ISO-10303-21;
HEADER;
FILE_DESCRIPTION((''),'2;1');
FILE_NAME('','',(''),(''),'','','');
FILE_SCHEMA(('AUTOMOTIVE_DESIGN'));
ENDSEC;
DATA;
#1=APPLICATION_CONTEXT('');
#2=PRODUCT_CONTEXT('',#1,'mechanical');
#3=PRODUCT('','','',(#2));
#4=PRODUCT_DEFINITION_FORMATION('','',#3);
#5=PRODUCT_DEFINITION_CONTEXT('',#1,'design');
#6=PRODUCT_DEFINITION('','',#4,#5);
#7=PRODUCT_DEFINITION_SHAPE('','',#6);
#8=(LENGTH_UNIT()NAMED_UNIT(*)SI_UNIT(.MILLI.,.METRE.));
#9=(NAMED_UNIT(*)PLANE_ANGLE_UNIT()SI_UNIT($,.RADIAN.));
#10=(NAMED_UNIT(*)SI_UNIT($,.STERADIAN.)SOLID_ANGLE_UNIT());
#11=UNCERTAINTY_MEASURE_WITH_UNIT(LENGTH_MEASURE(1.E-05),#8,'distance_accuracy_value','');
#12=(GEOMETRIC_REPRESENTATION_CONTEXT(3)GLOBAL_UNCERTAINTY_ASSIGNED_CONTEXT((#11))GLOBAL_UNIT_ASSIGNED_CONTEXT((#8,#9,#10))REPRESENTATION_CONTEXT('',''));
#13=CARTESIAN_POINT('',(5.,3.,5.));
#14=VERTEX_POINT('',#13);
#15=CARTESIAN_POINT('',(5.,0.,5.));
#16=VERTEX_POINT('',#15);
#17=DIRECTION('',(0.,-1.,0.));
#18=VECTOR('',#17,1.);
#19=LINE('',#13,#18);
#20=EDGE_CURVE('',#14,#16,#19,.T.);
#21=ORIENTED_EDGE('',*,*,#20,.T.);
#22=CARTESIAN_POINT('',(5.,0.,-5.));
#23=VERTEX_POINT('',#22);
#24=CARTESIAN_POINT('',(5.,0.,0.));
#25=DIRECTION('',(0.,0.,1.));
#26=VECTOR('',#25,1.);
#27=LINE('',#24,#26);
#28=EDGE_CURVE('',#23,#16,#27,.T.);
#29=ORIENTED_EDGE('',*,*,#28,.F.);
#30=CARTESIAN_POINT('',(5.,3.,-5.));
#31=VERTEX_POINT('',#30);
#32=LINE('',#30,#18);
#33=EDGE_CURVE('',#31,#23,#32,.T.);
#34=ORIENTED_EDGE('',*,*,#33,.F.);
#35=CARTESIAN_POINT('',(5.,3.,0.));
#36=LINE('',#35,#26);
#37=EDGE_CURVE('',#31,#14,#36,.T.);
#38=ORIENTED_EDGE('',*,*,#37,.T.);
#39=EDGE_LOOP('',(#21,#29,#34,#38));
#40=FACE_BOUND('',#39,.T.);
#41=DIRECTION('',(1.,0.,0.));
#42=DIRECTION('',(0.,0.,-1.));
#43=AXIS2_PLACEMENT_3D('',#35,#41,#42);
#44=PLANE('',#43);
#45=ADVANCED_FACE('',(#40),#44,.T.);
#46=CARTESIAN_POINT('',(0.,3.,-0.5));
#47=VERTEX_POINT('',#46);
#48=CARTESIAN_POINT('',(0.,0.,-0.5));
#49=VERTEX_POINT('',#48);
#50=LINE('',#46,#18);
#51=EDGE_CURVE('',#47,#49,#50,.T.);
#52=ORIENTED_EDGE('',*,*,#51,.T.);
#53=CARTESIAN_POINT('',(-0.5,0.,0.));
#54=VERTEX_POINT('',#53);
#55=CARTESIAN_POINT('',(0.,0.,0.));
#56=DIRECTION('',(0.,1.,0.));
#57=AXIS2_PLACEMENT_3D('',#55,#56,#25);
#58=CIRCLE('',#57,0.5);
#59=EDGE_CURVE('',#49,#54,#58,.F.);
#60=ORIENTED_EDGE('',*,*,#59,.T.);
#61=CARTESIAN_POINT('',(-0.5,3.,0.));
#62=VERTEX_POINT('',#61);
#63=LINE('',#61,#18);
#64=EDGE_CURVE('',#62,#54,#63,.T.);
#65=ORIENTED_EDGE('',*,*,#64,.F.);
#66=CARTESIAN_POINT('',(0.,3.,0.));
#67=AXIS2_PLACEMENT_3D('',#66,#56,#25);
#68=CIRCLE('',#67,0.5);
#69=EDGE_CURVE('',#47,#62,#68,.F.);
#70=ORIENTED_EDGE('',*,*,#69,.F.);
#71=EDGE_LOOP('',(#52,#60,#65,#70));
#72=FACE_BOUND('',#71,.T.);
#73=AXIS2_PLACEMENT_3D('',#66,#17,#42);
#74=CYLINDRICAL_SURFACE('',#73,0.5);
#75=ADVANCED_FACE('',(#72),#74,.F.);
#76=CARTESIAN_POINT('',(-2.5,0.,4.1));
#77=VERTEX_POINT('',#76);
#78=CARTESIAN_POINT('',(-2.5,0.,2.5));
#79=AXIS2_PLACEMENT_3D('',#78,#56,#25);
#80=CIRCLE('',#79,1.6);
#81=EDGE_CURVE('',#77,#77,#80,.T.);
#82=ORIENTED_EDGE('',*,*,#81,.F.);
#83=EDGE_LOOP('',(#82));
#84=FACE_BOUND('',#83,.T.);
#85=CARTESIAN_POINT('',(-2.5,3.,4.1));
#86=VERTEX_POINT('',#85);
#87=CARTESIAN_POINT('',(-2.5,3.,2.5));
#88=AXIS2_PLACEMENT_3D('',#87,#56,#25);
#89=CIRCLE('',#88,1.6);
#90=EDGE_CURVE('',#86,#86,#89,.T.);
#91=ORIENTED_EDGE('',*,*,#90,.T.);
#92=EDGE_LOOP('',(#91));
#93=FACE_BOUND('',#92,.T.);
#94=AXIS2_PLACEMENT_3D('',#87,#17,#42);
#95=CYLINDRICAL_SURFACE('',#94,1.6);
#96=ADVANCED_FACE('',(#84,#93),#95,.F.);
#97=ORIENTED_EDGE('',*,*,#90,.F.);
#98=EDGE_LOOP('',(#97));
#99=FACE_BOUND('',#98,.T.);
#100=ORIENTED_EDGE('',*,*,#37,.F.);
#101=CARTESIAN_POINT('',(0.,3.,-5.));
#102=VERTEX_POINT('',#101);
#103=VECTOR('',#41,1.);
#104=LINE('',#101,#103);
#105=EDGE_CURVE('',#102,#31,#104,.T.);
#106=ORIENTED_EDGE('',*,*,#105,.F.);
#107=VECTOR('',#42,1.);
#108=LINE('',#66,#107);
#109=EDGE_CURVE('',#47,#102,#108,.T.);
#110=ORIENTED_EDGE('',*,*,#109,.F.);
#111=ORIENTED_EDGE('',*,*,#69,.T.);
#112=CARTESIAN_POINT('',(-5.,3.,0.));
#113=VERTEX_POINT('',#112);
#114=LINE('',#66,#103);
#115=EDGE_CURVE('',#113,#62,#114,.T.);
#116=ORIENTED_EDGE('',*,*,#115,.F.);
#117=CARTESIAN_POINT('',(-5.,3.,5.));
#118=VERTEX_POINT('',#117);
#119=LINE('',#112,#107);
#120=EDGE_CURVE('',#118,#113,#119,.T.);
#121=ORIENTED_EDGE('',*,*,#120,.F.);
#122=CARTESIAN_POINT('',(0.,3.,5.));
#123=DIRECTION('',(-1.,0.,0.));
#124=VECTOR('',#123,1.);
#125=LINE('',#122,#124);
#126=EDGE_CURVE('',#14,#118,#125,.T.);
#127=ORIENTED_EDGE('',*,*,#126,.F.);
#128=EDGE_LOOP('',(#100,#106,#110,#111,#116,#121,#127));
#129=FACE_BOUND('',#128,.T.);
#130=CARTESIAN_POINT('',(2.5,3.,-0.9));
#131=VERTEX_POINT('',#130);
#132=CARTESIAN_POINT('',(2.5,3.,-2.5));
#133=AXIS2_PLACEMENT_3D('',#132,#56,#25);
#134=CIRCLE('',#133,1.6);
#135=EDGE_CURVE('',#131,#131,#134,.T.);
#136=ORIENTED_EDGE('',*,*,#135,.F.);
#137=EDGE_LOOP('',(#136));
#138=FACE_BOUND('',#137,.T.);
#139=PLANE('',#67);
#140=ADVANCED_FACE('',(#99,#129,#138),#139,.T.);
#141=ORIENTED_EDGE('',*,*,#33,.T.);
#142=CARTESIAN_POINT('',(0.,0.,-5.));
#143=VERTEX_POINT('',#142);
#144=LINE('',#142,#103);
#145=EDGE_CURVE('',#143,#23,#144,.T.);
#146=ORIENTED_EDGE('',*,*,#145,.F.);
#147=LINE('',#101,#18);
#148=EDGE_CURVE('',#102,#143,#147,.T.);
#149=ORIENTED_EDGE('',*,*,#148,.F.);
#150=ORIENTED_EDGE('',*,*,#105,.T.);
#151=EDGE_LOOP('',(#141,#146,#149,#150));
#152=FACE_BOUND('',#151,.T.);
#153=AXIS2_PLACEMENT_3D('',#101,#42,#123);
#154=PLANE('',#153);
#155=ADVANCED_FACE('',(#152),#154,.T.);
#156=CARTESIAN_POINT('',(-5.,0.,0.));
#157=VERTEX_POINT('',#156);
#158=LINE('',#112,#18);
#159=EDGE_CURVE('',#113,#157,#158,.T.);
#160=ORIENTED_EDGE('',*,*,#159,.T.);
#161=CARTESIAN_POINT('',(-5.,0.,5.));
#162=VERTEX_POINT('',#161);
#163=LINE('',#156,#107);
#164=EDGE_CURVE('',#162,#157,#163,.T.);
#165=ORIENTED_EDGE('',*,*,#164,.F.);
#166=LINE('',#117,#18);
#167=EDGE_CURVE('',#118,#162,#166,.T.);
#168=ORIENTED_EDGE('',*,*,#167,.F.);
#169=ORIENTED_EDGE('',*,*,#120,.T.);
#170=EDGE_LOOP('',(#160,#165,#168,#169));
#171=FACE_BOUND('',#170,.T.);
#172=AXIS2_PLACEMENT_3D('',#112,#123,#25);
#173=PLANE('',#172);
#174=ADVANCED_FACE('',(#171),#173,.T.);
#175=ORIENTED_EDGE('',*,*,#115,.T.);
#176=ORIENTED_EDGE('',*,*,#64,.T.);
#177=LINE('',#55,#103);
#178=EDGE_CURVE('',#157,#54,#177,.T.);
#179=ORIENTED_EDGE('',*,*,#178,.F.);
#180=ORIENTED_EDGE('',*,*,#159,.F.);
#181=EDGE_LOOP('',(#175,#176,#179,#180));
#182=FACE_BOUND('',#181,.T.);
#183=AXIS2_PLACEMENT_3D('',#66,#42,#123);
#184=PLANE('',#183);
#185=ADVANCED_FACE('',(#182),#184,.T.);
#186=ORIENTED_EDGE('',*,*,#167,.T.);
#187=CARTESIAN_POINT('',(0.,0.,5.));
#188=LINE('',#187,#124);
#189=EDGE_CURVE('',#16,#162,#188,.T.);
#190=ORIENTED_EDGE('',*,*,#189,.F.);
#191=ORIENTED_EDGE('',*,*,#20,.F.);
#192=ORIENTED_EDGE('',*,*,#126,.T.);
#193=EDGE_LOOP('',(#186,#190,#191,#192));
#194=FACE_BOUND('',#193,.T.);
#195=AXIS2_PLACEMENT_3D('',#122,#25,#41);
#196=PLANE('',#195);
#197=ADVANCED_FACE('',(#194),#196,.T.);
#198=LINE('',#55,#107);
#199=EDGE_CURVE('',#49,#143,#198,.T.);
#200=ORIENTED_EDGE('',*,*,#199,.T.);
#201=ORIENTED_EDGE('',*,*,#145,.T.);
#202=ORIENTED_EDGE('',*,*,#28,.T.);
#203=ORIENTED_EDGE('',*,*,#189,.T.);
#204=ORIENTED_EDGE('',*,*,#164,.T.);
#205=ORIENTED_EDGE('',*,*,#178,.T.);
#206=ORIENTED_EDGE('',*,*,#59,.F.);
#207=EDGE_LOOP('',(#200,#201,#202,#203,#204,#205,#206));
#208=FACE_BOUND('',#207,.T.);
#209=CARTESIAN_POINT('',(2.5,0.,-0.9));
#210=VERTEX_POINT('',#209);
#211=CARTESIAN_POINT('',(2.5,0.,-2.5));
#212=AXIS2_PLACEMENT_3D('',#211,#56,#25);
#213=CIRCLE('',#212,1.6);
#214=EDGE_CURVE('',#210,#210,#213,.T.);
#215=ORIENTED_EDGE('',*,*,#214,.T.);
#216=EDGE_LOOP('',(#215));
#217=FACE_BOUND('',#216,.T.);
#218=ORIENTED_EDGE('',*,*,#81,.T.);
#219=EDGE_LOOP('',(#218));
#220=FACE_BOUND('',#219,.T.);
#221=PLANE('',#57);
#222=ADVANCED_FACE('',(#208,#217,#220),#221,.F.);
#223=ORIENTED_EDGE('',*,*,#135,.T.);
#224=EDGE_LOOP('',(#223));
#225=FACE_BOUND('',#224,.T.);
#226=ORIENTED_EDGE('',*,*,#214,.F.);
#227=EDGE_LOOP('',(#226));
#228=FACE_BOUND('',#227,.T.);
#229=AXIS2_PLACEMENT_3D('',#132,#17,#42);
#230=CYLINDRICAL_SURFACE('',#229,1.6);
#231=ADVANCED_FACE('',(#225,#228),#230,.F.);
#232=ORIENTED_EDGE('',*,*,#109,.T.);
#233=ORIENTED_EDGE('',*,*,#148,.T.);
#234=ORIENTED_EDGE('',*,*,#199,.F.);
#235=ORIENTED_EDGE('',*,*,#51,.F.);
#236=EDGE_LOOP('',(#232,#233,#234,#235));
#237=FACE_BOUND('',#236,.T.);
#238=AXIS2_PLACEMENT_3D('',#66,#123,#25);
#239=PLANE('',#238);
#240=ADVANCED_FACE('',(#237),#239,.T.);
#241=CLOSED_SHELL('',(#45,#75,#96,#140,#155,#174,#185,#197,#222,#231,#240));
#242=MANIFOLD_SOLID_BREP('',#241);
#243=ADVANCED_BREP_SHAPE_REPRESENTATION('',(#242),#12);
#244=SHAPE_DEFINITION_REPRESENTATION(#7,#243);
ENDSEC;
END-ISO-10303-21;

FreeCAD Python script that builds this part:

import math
import FreeCAD as App
import Part
import Sketcher

doc = App.newDocument("Part")
params = doc.addObject("Spreadsheet::Sheet", "Params")
for row, (alias, value) in enumerate([
    ("sketch1_diameter", "3.2 mm"),
    ("sketch1_radius", "0.5 mm"),
    ("sketch1_width", "10 mm"),
    ("pad1_length", "3 mm"),
], start=1):
    params.set(f"A{row}", alias)
    params.set(f"B{row}", "=" + value)
    params.setAlias(f"B{row}", alias)

body = doc.addObject("PartDesign::Body", "Body")

# Sketch on XZ plane
sketch1 = body.newObject("Sketcher::SketchObject", "Sketch")
sketch1.AttachmentSupport = (doc.getObject("XZ_Plane"), [""])
sketch1.MapMode = "FlatFace"
sketch1.addGeometry(Part.LineSegment(App.Vector(-0.5, 0, 0), App.Vector(-5, 0, 0)), False)
sketch1.addGeometry(Part.LineSegment(App.Vector(-5, 0, 0), App.Vector(-5, 5, 0)), False)
sketch1.addGeometry(Part.LineSegment(App.Vector(-5, 5, 0), App.Vector(5, 5, 0)), False)
sketch1.addGeometry(Part.LineSegment(App.Vector(5, 5, 0), App.Vector(5, -5, 0)), False)
sketch1.addGeometry(Part.LineSegment(App.Vector(5, -5, 0), App.Vector(0, -5, 0)), False)
sketch1.addGeometry(Part.LineSegment(App.Vector(0, -5, 0), App.Vector(0, -0.5, 0)), False)
sketch1.addGeometry(Part.ArcOfCircle(Part.Circle(App.Vector(0, 0, 0), App.Vector(0, 0, 1), 0.5), math.radians(-90), math.radians(180)), False)
sketch1.addGeometry(Part.Circle(App.Vector(-2.5, 2.5, 0), App.Vector(0, 0, 1), 1.6), False)
sketch1.addGeometry(Part.Circle(App.Vector(2.5, -2.5, 0), App.Vector(0, 0, 1), 1.6), False)
sketch1.addConstraint(Sketcher.Constraint("Coincident", 0, 2, 1, 1))
sketch1.addConstraint(Sketcher.Constraint("Coincident", 1, 2, 2, 1))
sketch1.addConstraint(Sketcher.Constraint("Coincident", 2, 2, 3, 1))
sketch1.addConstraint(Sketcher.Constraint("Coincident", 3, 2, 4, 1))
sketch1.addConstraint(Sketcher.Constraint("Coincident", 4, 2, 5, 1))
sketch1.addConstraint(Sketcher.Constraint("Coincident", 5, 2, 6, 1))
sketch1.addConstraint(Sketcher.Constraint("Coincident", 6, 2, 0, 1))
sketch1.addConstraint(Sketcher.Constraint("Horizontal", 0))
sketch1.addConstraint(Sketcher.Constraint("Vertical", 1))
sketch1.addConstraint(Sketcher.Constraint("Horizontal", 2))
sketch1.addConstraint(Sketcher.Constraint("Vertical", 3))
sketch1.addConstraint(Sketcher.Constraint("Horizontal", 4))
sketch1.addConstraint(Sketcher.Constraint("Vertical", 5))
sketch1.addConstraint(Sketcher.Constraint("Coincident", 6, 3, -1, 1))
sketch1.addConstraint(Sketcher.Constraint("Equal", 7, 8))
sketch1.addConstraint(Sketcher.Constraint("Symmetric", 7, 3, 8, 3, -1, 1))
sketch1.addConstraint(Sketcher.Constraint("Symmetric", 1, 2, 3, 2, -1, 1))
sketch1.addConstraint(Sketcher.Constraint("PointOnObject", 0, 2, -1))
sketch1.addConstraint(Sketcher.Constraint("PointOnObject", 4, 2, -2))
sketch1.addConstraint(Sketcher.Constraint("Equal", 4, 1))
sketch1.addConstraint(Sketcher.Constraint("Diameter", 7, 3.2))
sketch1.addConstraint(Sketcher.Constraint("Radius", 6, 0.5))
sketch1.addConstraint(Sketcher.Constraint("DistanceX", 2, 1, 2, 2, 10.0))
sketch1.addConstraint(Sketcher.Constraint("DistanceX", 7, 3, 8, 3, 5.0))
sketch1.addConstraint(Sketcher.Constraint("DistanceY", 8, 3, 7, 3, 5.0))
sketch1.setExpression("Constraints[20]", "Params.sketch1_diameter")
sketch1.setExpression("Constraints[21]", "Params.sketch1_radius")
sketch1.setExpression("Constraints[22]", "Params.sketch1_width")
pad1 = body.newObject("PartDesign::Pad", "Pad")
pad1.Profile = sketch1
pad1.setExpression("Length", "Params.pad1_length")
pad1.Reversed = True

doc.recompute()
